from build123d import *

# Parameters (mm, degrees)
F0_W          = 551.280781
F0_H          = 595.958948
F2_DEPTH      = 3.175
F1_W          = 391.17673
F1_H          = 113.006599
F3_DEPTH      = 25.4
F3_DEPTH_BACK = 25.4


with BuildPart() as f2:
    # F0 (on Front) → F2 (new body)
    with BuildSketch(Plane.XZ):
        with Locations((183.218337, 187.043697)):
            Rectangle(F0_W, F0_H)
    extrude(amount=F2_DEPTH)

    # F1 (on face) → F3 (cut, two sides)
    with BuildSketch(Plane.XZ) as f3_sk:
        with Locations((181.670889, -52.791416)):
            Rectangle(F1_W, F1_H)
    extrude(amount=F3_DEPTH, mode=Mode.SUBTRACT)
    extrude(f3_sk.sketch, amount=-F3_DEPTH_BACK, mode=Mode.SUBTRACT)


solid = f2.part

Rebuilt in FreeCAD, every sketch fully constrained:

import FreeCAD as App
import Part
import Sketcher
Q = App.Units.Quantity


def add_polygon(sketch, points):
    """Adds a closed chain of lines whose ends are joined by coincident constraints."""
    first, n = sketch.GeometryCount, len(points)
    for a, b in zip(points, points[1:] + points[:1]):
        sketch.addGeometry(Part.LineSegment(App.Vector(*a, 0), App.Vector(*b, 0)), False)
    for i in range(n):
        sketch.addConstraint(Sketcher.Constraint("Coincident", first + i, 2, first + (i + 1) % n, 1))

doc = App.newDocument("Part")
body = doc.addObject("PartDesign::Body", "Body")

sketch1 = doc.addObject("Sketcher::SketchObject", "Sketch")
body.addObject(sketch1)
sketch1.AttachmentSupport = (doc.XZ_Plane, [""])
sketch1.MapMode = "FlatFace"
add_polygon(sketch1, [(-92.422054, 485.023171), (-92.422054, -110.935777), (458.858727, -110.935777), (458.858727, 485.023171)])
sketch1.addConstraint([
    Sketcher.Constraint("Vertical", 0),
    Sketcher.Constraint("Horizontal", 1),
    Sketcher.Constraint("Vertical", 2),
    Sketcher.Constraint("Horizontal", 3),
    Sketcher.Constraint("DistanceX", 1, 1, 1, 2, Q("551.280781 mm")),
    Sketcher.Constraint("DistanceY", 0, 2, 0, 1, Q("595.958948 mm")),
    Sketcher.Constraint("DistanceY", -1, 1, 2, 2, Q("485.023171 mm")),
    Sketcher.Constraint("DistanceX", 0, 2, -1, 1, Q("92.422054 mm")),
])
pad1 = doc.addObject("PartDesign::Pad", "Pad")
body.addObject(pad1)
pad1.Profile = sketch1
pad1.Length = Q("0.125 in")

sketch2 = doc.addObject("Sketcher::SketchObject", "Sketch001")
body.addObject(sketch2)
sketch2.AttachmentSupport = (doc.XZ_Plane, [""])
sketch2.MapMode = "FlatFace"
add_polygon(sketch2, [(-13.917476, 3.711883), (-13.917476, -109.294715), (377.259254, -109.294715), (377.259254, 3.711883)])
sketch2.addConstraint([
    Sketcher.Constraint("Vertical", 0),
    Sketcher.Constraint("Horizontal", 1),
    Sketcher.Constraint("Vertical", 2),
    Sketcher.Constraint("Horizontal", 3),
    Sketcher.Constraint("DistanceY", 0, 2, 0, 1, Q("113.006599 mm")),
    Sketcher.Constraint("DistanceX", 1, 1, 1, 2, Q("391.17673 mm")),
    Sketcher.Constraint("DistanceX", 0, 2, -1, 1, Q("13.917476 mm")),
    Sketcher.Constraint("DistanceY", 0, 2, -1, 1, Q("109.294715 mm")),
])
pocket1 = doc.addObject("PartDesign::Pocket", "Pocket")
body.addObject(pocket1)
pocket1.Profile = sketch2
pocket1.Type = "ThroughAll"
pocket1.Midplane = True

doc.recompute()
